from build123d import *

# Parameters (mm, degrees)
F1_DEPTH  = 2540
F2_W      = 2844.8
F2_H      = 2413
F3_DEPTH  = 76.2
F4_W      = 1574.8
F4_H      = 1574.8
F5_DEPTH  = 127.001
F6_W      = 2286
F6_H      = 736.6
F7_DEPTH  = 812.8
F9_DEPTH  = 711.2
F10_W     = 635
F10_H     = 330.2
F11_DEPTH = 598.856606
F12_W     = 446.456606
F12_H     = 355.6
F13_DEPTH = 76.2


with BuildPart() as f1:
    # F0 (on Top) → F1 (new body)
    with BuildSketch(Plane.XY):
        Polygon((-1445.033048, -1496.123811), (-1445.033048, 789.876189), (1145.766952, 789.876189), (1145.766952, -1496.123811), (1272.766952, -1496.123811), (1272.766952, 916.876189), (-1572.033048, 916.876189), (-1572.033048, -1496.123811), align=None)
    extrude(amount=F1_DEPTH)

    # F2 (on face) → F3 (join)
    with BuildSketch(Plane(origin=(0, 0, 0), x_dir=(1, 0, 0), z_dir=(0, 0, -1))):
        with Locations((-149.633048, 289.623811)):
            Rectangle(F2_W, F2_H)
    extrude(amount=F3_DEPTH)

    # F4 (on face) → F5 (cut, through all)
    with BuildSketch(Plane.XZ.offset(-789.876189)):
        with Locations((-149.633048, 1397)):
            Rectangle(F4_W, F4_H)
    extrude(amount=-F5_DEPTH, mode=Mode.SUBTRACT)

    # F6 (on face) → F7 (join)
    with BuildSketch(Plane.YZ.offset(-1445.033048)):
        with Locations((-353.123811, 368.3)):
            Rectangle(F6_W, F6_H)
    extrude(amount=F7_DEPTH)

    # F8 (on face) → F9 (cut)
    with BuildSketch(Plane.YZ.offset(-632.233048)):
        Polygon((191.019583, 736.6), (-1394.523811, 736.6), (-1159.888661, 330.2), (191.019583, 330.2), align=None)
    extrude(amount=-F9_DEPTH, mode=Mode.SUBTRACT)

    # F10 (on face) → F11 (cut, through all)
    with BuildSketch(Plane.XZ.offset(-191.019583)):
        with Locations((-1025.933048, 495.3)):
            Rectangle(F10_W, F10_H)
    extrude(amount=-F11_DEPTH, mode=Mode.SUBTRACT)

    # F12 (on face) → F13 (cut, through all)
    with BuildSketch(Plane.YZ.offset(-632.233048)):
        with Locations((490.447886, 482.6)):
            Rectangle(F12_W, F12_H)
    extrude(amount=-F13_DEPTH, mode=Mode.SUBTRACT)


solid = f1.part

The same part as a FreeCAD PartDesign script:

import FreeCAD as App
import Part
import Sketcher
from FreeCAD import Vector
Q = App.Units.Quantity

doc = App.newDocument("Part")
body = doc.addObject("PartDesign::Body", "Body")

sketch1 = body.newObject("Sketcher::SketchObject", "Sketch")
sketch1.AttachmentSupport = (doc.getObject("XY_Plane"), [""])
sketch1.MapMode = "FlatFace"
sketch1.addGeometry(Part.LineSegment(Vector(-1445.033048, -1496.123811, 0), Vector(-1445.033048, 789.876189, 0)), False)
sketch1.addGeometry(Part.LineSegment(Vector(-1445.033048, 789.876189, 0), Vector(1145.766952, 789.876189, 0)), False)
sketch1.addGeometry(Part.LineSegment(Vector(1145.766952, 789.876189, 0), Vector(1145.766952, -1496.123811, 0)), False)
sketch1.addGeometry(Part.LineSegment(Vector(1145.766952, -1496.123811, 0), Vector(1272.766952, -1496.123811, 0)), False)
sketch1.addGeometry(Part.LineSegment(Vector(1272.766952, -1496.123811, 0), Vector(1272.766952, 916.876189, 0)), False)
sketch1.addGeometry(Part.LineSegment(Vector(1272.766952, 916.876189, 0), Vector(-1572.033048, 916.876189, 0)), False)
sketch1.addGeometry(Part.LineSegment(Vector(-1572.033048, 916.876189, 0), Vector(-1572.033048, -1496.123811, 0)), False)
sketch1.addGeometry(Part.LineSegment(Vector(-1572.033048, -1496.123811, 0), Vector(-1445.033048, -1496.123811, 0)), False)
sketch1.addConstraint(Sketcher.Constraint("Coincident", 0, 2, 1, 1))
sketch1.addConstraint(Sketcher.Constraint("Coincident", 1, 2, 2, 1))
sketch1.addConstraint(Sketcher.Constraint("Coincident", 2, 2, 3, 1))
sketch1.addConstraint(Sketcher.Constraint("Coincident", 3, 2, 4, 1))
sketch1.addConstraint(Sketcher.Constraint("Coincident", 4, 2, 5, 1))
sketch1.addConstraint(Sketcher.Constraint("Coincident", 5, 2, 6, 1))
sketch1.addConstraint(Sketcher.Constraint("Coincident", 6, 2, 7, 1))
sketch1.addConstraint(Sketcher.Constraint("Coincident", 7, 2, 0, 1))
sketch1.addConstraint(Sketcher.Constraint("Vertical", 0))
sketch1.addConstraint(Sketcher.Constraint("Horizontal", 1))
sketch1.addConstraint(Sketcher.Constraint("Vertical", 2))
sketch1.addConstraint(Sketcher.Constraint("Horizontal", 3))
sketch1.addConstraint(Sketcher.Constraint("Vertical", 4))
sketch1.addConstraint(Sketcher.Constraint("Horizontal", 5))
sketch1.addConstraint(Sketcher.Constraint("Vertical", 6))
sketch1.addConstraint(Sketcher.Constraint("Horizontal", 7))
sketch1.addConstraint(Sketcher.Constraint("Horizontal", 3, 2, 6, 2))
sketch1.addConstraint(Sketcher.Constraint("Equal", 3, 7))
sketch1.addConstraint(Sketcher.Constraint("DistanceX", 1, 1, 1, 2, Q("102 in")))
sketch1.addConstraint(Sketcher.Constraint("DistanceX", 3, 1, 3, 2, Q("5 in")))
sketch1.addConstraint(Sketcher.Constraint("DistanceY", 0, 1, 0, 2, Q("90 in")))
sketch1.addConstraint(Sketcher.Constraint("DistanceY", 4, 1, 4, 2, Q("95 in")))
sketch1.addConstraint(Sketcher.Constraint("DistanceX", 0, 2, -1, 1, 1445.033048))
sketch1.addConstraint(Sketcher.Constraint("DistanceY", -1, 1, 0, 2, 789.876189))
pad1 = body.newObject("PartDesign::Pad", "Pad")
pad1.Profile = sketch1
pad1.Length = Q("100 in")

sketch2 = body.newObject("Sketcher::SketchObject", "Sketch001")
sketch2.AttachmentSupport = (doc.getObject("XY_Plane"), [""])
sketch2.MapMode = "FlatFace"
sketch2.addGeometry(Part.LineSegment(Vector(-1572.033048, -1496.123811, 0), Vector(-1572.033048, 916.876189, 0)), False)
sketch2.addGeometry(Part.LineSegment(Vector(-1572.033048, 916.876189, 0), Vector(1272.766952, 916.876189, 0)), False)
sketch2.addGeometry(Part.LineSegment(Vector(1272.766952, 916.876189, 0), Vector(1272.766952, -1496.123811, 0)), False)
sketch2.addGeometry(Part.LineSegment(Vector(1272.766952, -1496.123811, 0), Vector(-1572.033048, -1496.123811, 0)), False)
sketch2.addConstraint(Sketcher.Constraint("Coincident", 0, 2, 1, 1))
sketch2.addConstraint(Sketcher.Constraint("Coincident", 1, 2, 2, 1))
sketch2.addConstraint(Sketcher.Constraint("Coincident", 2, 2, 3, 1))
sketch2.addConstraint(Sketcher.Constraint("Coincident", 3, 2, 0, 1))
sketch2.addConstraint(Sketcher.Constraint("Vertical", 0))
sketch2.addConstraint(Sketcher.Constraint("Horizontal", 1))
sketch2.addConstraint(Sketcher.Constraint("Vertical", 2))
sketch2.addConstraint(Sketcher.Constraint("Horizontal", 3))
sketch2.addConstraint(Sketcher.Constraint("DistanceX", 1, 1, 1, 2, Q("112 in")))
sketch2.addConstraint(Sketcher.Constraint("DistanceY", 0, 1, 0, 2, Q("95 in")))
sketch2.addConstraint(Sketcher.Constraint("DistanceX", 0, 2, -1, 1, 1572.033048))
sketch2.addConstraint(Sketcher.Constraint("DistanceY", -1, 1, 0, 2, 916.876189))
pad2 = body.newObject("PartDesign::Pad", "Pad001")
pad2.Profile = sketch2
pad2.Length = Q("3 in")
pad2.Reversed = True

sketch3 = body.newObject("Sketcher::SketchObject", "Sketch002")
sketch3.AttachmentSupport = (doc.getObject("XZ_Plane"), [""])
sketch3.MapMode = "FlatFace"
sketch3.AttachmentOffset = App.Placement(Vector(0, 0, -789.876189), App.Rotation())
sketch3.addGeometry(Part.LineSegment(Vector(-937.033048, 2184.4, 0), Vector(-937.033048, 609.6, 0)), False)
sketch3.addGeometry(Part.LineSegment(Vector(-937.033048, 609.6, 0), Vector(637.766952, 609.6, 0)), False)
sketch3.addGeometry(Part.LineSegment(Vector(637.766952, 609.6, 0), Vector(637.766952, 2184.4, 0)), False)
sketch3.addGeometry(Part.LineSegment(Vector(637.766952, 2184.4, 0), Vector(-937.033048, 2184.4, 0)), False)
sketch3.addConstraint(Sketcher.Constraint("Coincident", 0, 2, 1, 1))
sketch3.addConstraint(Sketcher.Constraint("Coincident", 1, 2, 2, 1))
sketch3.addConstraint(Sketcher.Constraint("Coincident", 2, 2, 3, 1))
sketch3.addConstraint(Sketcher.Constraint("Coincident", 3, 2, 0, 1))
sketch3.addConstraint(Sketcher.Constraint("Vertical", 0))
sketch3.addConstraint(Sketcher.Constraint("Horizontal", 1))
sketch3.addConstraint(Sketcher.Constraint("Vertical", 2))
sketch3.addConstraint(Sketcher.Constraint("Horizontal", 3))
sketch3.addConstraint(Sketcher.Constraint("Equal", 3, 0))
sketch3.addConstraint(Sketcher.Constraint("DistanceX", 1, 1, 1, 2, Q("62 in")))
sketch3.addConstraint(Sketcher.Constraint("DistanceY", -1, 1, 0, 2, Q("24 in")))
sketch3.addConstraint(Sketcher.Constraint("DistanceX", 0, 2, -1, 1, 937.033048))
pocket1 = body.newObject("PartDesign::Pocket", "Pocket")
pocket1.Profile = sketch3
pocket1.Type = "ThroughAll"

sketch4 = body.newObject("Sketcher::SketchObject", "Sketch003")
sketch4.AttachmentSupport = (doc.getObject("YZ_Plane"), [""])
sketch4.MapMode = "FlatFace"
sketch4.AttachmentOffset = App.Placement(Vector(0, 0, -1445.033048), App.Rotation())
sketch4.addGeometry(Part.LineSegment(Vector(-1496.123811, 736.6, 0), Vector(-1496.123811, 0, 0)), False)
sketch4.addGeometry(Part.LineSegment(Vector(-1496.123811, 0, 0), Vector(789.876189, 0, 0)), False)
sketch4.addGeometry(Part.LineSegment(Vector(789.876189, 0, 0), Vector(789.876189, 736.6, 0)), False)
sketch4.addGeometry(Part.LineSegment(Vector(789.876189, 736.6, 0), Vector(-1496.123811, 736.6, 0)), False)
sketch4.addConstraint(Sketcher.Constraint("Coincident", 0, 2, 1, 1))
sketch4.addConstraint(Sketcher.Constraint("Coincident", 1, 2, 2, 1))
sketch4.addConstraint(Sketcher.Constraint("Coincident", 2, 2, 3, 1))
sketch4.addConstraint(Sketcher.Constraint("Coincident", 3, 2, 0, 1))
sketch4.addConstraint(Sketcher.Constraint("Vertical", 0))
sketch4.addConstraint(Sketcher.Constraint("Horizontal", 1))
sketch4.addConstraint(Sketcher.Constraint("Vertical", 2))
sketch4.addConstraint(Sketcher.Constraint("Horizontal", 3))
sketch4.addConstraint(Sketcher.Constraint("PointOnObject", 0, 2, -1))
sketch4.addConstraint(Sketcher.Constraint("DistanceX", 1, 1, 1, 2, Q("90 in")))
sketch4.addConstraint(Sketcher.Constraint("DistanceY", 0, 2, 0, 1, Q("29 in")))
sketch4.addConstraint(Sketcher.Constraint("DistanceX", 0, 2, -1, 1, 1496.123811))
pad3 = body.newObject("PartDesign::Pad", "Pad002")
pad3.Profile = sketch4
pad3.Length = Q("32 in")

sketch5 = body.newObject("Sketcher::SketchObject", "Sketch004")
sketch5.AttachmentSupport = (doc.getObject("YZ_Plane"), [""])
sketch5.MapMode = "FlatFace"
sketch5.AttachmentOffset = App.Placement(Vector(0, 0, -632.233048), App.Rotation())
sketch5.addGeometry(Part.LineSegment(Vector(191.019583, 736.6, 0), Vector(-1394.523811, 736.6, 0)), False)
sketch5.addGeometry(Part.LineSegment(Vector(-1394.523811, 736.6, 0), Vector(-1159.888661, 330.2, 0)), False)
sketch5.addGeometry(Part.LineSegment(Vector(-1159.888661, 330.2, 0), Vector(191.019583, 330.2, 0)), False)
sketch5.addGeometry(Part.LineSegment(Vector(191.019583, 330.2, 0), Vector(191.019583, 736.6, 0)), False)
sketch5.addConstraint(Sketcher.Constraint("Coincident", 0, 2, 1, 1))
sketch5.addConstraint(Sketcher.Constraint("Coincident", 1, 2, 2, 1))
sketch5.addConstraint(Sketcher.Constraint("Coincident", 2, 2, 3, 1))
sketch5.addConstraint(Sketcher.Constraint("Coincident", 3, 2, 0, 1))
sketch5.addConstraint(Sketcher.Constraint("Horizontal", 0))
sketch5.addConstraint(Sketcher.Constraint("Horizontal", 2))
sketch5.addConstraint(Sketcher.Constraint("Vertical", 3))
sketch5.addConstraint(Sketcher.Constraint("DistanceY", 3, 1, 3, 2, Q("16 in")))
sketch5.addConstraint(Sketcher.Constraint("DistanceY", -1, 1, 0, 2, Q("29 in")))
sketch5.addConstraint(Sketcher.Constraint("Angle", 1, Q("-60 deg")))
sketch5.addConstraint(Sketcher.Constraint("DistanceX", 0, 2, 0, 1, 1585.543394))
sketch5.addConstraint(Sketcher.Constraint("DistanceX", 0, 2, -1, 1, 1394.523811))
pocket2 = body.newObject("PartDesign::Pocket", "Pocket001")
pocket2.Profile = sketch5
pocket2.Length = Q("28 in")

sketch6 = body.newObject("Sketcher::SketchObject", "Sketch005")
sketch6.AttachmentSupport = (doc.getObject("XZ_Plane"), [""])
sketch6.MapMode = "FlatFace"
sketch6.AttachmentOffset = App.Placement(Vector(0, 0, -191.019583), App.Rotation())
sketch6.addGeometry(Part.LineSegment(Vector(-1343.433048, 660.4, 0), Vector(-1343.433048, 330.2, 0)), False)
sketch6.addGeometry(Part.LineSegment(Vector(-1343.433048, 330.2, 0), Vector(-708.433048, 330.2, 0)), False)
sketch6.addGeometry(Part.LineSegment(Vector(-708.433048, 330.2, 0), Vector(-708.433048, 660.4, 0)), False)
sketch6.addGeometry(Part.LineSegment(Vector(-708.433048, 660.4, 0), Vector(-1343.433048, 660.4, 0)), False)
sketch6.addConstraint(Sketcher.Constraint("Coincident", 0, 2, 1, 1))
sketch6.addConstraint(Sketcher.Constraint("Coincident", 1, 2, 2, 1))
sketch6.addConstraint(Sketcher.Constraint("Coincident", 2, 2, 3, 1))
sketch6.addConstraint(Sketcher.Constraint("Coincident", 3, 2, 0, 1))
sketch6.addConstraint(Sketcher.Constraint("Vertical", 0))
sketch6.addConstraint(Sketcher.Constraint("Horizontal", 1))
sketch6.addConstraint(Sketcher.Constraint("Vertical", 2))
sketch6.addConstraint(Sketcher.Constraint("Horizontal", 3))
sketch6.addConstraint(Sketcher.Constraint("DistanceX", 1, 1, 1, 2, Q("25 in")))
sketch6.addConstraint(Sketcher.Constraint("DistanceY", 0, 2, 0, 1, Q("13 in")))
sketch6.addConstraint(Sketcher.Constraint("DistanceY", -1, 1, 0, 2, Q("13 in")))
sketch6.addConstraint(Sketcher.Constraint("DistanceX", 0, 2, -1, 1, 1343.433048))
pocket3 = body.newObject("PartDesign::Pocket", "Pocket002")
pocket3.Profile = sketch6
pocket3.Length = 598.856606

sketch7 = body.newObject("Sketcher::SketchObject", "Sketch006")
sketch7.AttachmentSupport = (doc.getObject("YZ_Plane"), [""])
sketch7.MapMode = "FlatFace"
sketch7.AttachmentOffset = App.Placement(Vector(0, 0, -632.233048), App.Rotation())
sketch7.addGeometry(Part.LineSegment(Vector(267.219583, 660.4, 0), Vector(267.219583, 304.8, 0)), False)
sketch7.addGeometry(Part.LineSegment(Vector(267.219583, 304.8, 0), Vector(713.676189, 304.8, 0)), False)
sketch7.addGeometry(Part.LineSegment(Vector(713.676189, 304.8, 0), Vector(713.676189, 660.4, 0)), False)
sketch7.addGeometry(Part.LineSegment(Vector(713.676189, 660.4, 0), Vector(267.219583, 660.4, 0)), False)
sketch7.addConstraint(Sketcher.Constraint("Coincident", 0, 2, 1, 1))
sketch7.addConstraint(Sketcher.Constraint("Coincident", 1, 2, 2, 1))
sketch7.addConstraint(Sketcher.Constraint("Coincident", 2, 2, 3, 1))
sketch7.addConstraint(Sketcher.Constraint("Coincident", 3, 2, 0, 1))
sketch7.addConstraint(Sketcher.Constraint("Vertical", 0))
sketch7.addConstraint(Sketcher.Constraint("Horizontal", 1))
sketch7.addConstraint(Sketcher.Constraint("Vertical", 2))
sketch7.addConstraint(Sketcher.Constraint("Horizontal", 3))
sketch7.addConstraint(Sketcher.Constraint("DistanceY", 0, 2, 0, 1, Q("14 in")))
sketch7.addConstraint(Sketcher.Constraint("DistanceY", -1, 1, 0, 2, Q("12 in")))
sketch7.addConstraint(Sketcher.Constraint("DistanceX", 1, 1, 1, 2, 446.456606))
sketch7.addConstraint(Sketcher.Constraint("DistanceX", -1, 1, 1, 2, 713.676189))
pocket4 = body.newObject("PartDesign::Pocket", "Pocket003")
pocket4.Profile = sketch7
pocket4.Length = Q("3 in")

doc.recompute()
